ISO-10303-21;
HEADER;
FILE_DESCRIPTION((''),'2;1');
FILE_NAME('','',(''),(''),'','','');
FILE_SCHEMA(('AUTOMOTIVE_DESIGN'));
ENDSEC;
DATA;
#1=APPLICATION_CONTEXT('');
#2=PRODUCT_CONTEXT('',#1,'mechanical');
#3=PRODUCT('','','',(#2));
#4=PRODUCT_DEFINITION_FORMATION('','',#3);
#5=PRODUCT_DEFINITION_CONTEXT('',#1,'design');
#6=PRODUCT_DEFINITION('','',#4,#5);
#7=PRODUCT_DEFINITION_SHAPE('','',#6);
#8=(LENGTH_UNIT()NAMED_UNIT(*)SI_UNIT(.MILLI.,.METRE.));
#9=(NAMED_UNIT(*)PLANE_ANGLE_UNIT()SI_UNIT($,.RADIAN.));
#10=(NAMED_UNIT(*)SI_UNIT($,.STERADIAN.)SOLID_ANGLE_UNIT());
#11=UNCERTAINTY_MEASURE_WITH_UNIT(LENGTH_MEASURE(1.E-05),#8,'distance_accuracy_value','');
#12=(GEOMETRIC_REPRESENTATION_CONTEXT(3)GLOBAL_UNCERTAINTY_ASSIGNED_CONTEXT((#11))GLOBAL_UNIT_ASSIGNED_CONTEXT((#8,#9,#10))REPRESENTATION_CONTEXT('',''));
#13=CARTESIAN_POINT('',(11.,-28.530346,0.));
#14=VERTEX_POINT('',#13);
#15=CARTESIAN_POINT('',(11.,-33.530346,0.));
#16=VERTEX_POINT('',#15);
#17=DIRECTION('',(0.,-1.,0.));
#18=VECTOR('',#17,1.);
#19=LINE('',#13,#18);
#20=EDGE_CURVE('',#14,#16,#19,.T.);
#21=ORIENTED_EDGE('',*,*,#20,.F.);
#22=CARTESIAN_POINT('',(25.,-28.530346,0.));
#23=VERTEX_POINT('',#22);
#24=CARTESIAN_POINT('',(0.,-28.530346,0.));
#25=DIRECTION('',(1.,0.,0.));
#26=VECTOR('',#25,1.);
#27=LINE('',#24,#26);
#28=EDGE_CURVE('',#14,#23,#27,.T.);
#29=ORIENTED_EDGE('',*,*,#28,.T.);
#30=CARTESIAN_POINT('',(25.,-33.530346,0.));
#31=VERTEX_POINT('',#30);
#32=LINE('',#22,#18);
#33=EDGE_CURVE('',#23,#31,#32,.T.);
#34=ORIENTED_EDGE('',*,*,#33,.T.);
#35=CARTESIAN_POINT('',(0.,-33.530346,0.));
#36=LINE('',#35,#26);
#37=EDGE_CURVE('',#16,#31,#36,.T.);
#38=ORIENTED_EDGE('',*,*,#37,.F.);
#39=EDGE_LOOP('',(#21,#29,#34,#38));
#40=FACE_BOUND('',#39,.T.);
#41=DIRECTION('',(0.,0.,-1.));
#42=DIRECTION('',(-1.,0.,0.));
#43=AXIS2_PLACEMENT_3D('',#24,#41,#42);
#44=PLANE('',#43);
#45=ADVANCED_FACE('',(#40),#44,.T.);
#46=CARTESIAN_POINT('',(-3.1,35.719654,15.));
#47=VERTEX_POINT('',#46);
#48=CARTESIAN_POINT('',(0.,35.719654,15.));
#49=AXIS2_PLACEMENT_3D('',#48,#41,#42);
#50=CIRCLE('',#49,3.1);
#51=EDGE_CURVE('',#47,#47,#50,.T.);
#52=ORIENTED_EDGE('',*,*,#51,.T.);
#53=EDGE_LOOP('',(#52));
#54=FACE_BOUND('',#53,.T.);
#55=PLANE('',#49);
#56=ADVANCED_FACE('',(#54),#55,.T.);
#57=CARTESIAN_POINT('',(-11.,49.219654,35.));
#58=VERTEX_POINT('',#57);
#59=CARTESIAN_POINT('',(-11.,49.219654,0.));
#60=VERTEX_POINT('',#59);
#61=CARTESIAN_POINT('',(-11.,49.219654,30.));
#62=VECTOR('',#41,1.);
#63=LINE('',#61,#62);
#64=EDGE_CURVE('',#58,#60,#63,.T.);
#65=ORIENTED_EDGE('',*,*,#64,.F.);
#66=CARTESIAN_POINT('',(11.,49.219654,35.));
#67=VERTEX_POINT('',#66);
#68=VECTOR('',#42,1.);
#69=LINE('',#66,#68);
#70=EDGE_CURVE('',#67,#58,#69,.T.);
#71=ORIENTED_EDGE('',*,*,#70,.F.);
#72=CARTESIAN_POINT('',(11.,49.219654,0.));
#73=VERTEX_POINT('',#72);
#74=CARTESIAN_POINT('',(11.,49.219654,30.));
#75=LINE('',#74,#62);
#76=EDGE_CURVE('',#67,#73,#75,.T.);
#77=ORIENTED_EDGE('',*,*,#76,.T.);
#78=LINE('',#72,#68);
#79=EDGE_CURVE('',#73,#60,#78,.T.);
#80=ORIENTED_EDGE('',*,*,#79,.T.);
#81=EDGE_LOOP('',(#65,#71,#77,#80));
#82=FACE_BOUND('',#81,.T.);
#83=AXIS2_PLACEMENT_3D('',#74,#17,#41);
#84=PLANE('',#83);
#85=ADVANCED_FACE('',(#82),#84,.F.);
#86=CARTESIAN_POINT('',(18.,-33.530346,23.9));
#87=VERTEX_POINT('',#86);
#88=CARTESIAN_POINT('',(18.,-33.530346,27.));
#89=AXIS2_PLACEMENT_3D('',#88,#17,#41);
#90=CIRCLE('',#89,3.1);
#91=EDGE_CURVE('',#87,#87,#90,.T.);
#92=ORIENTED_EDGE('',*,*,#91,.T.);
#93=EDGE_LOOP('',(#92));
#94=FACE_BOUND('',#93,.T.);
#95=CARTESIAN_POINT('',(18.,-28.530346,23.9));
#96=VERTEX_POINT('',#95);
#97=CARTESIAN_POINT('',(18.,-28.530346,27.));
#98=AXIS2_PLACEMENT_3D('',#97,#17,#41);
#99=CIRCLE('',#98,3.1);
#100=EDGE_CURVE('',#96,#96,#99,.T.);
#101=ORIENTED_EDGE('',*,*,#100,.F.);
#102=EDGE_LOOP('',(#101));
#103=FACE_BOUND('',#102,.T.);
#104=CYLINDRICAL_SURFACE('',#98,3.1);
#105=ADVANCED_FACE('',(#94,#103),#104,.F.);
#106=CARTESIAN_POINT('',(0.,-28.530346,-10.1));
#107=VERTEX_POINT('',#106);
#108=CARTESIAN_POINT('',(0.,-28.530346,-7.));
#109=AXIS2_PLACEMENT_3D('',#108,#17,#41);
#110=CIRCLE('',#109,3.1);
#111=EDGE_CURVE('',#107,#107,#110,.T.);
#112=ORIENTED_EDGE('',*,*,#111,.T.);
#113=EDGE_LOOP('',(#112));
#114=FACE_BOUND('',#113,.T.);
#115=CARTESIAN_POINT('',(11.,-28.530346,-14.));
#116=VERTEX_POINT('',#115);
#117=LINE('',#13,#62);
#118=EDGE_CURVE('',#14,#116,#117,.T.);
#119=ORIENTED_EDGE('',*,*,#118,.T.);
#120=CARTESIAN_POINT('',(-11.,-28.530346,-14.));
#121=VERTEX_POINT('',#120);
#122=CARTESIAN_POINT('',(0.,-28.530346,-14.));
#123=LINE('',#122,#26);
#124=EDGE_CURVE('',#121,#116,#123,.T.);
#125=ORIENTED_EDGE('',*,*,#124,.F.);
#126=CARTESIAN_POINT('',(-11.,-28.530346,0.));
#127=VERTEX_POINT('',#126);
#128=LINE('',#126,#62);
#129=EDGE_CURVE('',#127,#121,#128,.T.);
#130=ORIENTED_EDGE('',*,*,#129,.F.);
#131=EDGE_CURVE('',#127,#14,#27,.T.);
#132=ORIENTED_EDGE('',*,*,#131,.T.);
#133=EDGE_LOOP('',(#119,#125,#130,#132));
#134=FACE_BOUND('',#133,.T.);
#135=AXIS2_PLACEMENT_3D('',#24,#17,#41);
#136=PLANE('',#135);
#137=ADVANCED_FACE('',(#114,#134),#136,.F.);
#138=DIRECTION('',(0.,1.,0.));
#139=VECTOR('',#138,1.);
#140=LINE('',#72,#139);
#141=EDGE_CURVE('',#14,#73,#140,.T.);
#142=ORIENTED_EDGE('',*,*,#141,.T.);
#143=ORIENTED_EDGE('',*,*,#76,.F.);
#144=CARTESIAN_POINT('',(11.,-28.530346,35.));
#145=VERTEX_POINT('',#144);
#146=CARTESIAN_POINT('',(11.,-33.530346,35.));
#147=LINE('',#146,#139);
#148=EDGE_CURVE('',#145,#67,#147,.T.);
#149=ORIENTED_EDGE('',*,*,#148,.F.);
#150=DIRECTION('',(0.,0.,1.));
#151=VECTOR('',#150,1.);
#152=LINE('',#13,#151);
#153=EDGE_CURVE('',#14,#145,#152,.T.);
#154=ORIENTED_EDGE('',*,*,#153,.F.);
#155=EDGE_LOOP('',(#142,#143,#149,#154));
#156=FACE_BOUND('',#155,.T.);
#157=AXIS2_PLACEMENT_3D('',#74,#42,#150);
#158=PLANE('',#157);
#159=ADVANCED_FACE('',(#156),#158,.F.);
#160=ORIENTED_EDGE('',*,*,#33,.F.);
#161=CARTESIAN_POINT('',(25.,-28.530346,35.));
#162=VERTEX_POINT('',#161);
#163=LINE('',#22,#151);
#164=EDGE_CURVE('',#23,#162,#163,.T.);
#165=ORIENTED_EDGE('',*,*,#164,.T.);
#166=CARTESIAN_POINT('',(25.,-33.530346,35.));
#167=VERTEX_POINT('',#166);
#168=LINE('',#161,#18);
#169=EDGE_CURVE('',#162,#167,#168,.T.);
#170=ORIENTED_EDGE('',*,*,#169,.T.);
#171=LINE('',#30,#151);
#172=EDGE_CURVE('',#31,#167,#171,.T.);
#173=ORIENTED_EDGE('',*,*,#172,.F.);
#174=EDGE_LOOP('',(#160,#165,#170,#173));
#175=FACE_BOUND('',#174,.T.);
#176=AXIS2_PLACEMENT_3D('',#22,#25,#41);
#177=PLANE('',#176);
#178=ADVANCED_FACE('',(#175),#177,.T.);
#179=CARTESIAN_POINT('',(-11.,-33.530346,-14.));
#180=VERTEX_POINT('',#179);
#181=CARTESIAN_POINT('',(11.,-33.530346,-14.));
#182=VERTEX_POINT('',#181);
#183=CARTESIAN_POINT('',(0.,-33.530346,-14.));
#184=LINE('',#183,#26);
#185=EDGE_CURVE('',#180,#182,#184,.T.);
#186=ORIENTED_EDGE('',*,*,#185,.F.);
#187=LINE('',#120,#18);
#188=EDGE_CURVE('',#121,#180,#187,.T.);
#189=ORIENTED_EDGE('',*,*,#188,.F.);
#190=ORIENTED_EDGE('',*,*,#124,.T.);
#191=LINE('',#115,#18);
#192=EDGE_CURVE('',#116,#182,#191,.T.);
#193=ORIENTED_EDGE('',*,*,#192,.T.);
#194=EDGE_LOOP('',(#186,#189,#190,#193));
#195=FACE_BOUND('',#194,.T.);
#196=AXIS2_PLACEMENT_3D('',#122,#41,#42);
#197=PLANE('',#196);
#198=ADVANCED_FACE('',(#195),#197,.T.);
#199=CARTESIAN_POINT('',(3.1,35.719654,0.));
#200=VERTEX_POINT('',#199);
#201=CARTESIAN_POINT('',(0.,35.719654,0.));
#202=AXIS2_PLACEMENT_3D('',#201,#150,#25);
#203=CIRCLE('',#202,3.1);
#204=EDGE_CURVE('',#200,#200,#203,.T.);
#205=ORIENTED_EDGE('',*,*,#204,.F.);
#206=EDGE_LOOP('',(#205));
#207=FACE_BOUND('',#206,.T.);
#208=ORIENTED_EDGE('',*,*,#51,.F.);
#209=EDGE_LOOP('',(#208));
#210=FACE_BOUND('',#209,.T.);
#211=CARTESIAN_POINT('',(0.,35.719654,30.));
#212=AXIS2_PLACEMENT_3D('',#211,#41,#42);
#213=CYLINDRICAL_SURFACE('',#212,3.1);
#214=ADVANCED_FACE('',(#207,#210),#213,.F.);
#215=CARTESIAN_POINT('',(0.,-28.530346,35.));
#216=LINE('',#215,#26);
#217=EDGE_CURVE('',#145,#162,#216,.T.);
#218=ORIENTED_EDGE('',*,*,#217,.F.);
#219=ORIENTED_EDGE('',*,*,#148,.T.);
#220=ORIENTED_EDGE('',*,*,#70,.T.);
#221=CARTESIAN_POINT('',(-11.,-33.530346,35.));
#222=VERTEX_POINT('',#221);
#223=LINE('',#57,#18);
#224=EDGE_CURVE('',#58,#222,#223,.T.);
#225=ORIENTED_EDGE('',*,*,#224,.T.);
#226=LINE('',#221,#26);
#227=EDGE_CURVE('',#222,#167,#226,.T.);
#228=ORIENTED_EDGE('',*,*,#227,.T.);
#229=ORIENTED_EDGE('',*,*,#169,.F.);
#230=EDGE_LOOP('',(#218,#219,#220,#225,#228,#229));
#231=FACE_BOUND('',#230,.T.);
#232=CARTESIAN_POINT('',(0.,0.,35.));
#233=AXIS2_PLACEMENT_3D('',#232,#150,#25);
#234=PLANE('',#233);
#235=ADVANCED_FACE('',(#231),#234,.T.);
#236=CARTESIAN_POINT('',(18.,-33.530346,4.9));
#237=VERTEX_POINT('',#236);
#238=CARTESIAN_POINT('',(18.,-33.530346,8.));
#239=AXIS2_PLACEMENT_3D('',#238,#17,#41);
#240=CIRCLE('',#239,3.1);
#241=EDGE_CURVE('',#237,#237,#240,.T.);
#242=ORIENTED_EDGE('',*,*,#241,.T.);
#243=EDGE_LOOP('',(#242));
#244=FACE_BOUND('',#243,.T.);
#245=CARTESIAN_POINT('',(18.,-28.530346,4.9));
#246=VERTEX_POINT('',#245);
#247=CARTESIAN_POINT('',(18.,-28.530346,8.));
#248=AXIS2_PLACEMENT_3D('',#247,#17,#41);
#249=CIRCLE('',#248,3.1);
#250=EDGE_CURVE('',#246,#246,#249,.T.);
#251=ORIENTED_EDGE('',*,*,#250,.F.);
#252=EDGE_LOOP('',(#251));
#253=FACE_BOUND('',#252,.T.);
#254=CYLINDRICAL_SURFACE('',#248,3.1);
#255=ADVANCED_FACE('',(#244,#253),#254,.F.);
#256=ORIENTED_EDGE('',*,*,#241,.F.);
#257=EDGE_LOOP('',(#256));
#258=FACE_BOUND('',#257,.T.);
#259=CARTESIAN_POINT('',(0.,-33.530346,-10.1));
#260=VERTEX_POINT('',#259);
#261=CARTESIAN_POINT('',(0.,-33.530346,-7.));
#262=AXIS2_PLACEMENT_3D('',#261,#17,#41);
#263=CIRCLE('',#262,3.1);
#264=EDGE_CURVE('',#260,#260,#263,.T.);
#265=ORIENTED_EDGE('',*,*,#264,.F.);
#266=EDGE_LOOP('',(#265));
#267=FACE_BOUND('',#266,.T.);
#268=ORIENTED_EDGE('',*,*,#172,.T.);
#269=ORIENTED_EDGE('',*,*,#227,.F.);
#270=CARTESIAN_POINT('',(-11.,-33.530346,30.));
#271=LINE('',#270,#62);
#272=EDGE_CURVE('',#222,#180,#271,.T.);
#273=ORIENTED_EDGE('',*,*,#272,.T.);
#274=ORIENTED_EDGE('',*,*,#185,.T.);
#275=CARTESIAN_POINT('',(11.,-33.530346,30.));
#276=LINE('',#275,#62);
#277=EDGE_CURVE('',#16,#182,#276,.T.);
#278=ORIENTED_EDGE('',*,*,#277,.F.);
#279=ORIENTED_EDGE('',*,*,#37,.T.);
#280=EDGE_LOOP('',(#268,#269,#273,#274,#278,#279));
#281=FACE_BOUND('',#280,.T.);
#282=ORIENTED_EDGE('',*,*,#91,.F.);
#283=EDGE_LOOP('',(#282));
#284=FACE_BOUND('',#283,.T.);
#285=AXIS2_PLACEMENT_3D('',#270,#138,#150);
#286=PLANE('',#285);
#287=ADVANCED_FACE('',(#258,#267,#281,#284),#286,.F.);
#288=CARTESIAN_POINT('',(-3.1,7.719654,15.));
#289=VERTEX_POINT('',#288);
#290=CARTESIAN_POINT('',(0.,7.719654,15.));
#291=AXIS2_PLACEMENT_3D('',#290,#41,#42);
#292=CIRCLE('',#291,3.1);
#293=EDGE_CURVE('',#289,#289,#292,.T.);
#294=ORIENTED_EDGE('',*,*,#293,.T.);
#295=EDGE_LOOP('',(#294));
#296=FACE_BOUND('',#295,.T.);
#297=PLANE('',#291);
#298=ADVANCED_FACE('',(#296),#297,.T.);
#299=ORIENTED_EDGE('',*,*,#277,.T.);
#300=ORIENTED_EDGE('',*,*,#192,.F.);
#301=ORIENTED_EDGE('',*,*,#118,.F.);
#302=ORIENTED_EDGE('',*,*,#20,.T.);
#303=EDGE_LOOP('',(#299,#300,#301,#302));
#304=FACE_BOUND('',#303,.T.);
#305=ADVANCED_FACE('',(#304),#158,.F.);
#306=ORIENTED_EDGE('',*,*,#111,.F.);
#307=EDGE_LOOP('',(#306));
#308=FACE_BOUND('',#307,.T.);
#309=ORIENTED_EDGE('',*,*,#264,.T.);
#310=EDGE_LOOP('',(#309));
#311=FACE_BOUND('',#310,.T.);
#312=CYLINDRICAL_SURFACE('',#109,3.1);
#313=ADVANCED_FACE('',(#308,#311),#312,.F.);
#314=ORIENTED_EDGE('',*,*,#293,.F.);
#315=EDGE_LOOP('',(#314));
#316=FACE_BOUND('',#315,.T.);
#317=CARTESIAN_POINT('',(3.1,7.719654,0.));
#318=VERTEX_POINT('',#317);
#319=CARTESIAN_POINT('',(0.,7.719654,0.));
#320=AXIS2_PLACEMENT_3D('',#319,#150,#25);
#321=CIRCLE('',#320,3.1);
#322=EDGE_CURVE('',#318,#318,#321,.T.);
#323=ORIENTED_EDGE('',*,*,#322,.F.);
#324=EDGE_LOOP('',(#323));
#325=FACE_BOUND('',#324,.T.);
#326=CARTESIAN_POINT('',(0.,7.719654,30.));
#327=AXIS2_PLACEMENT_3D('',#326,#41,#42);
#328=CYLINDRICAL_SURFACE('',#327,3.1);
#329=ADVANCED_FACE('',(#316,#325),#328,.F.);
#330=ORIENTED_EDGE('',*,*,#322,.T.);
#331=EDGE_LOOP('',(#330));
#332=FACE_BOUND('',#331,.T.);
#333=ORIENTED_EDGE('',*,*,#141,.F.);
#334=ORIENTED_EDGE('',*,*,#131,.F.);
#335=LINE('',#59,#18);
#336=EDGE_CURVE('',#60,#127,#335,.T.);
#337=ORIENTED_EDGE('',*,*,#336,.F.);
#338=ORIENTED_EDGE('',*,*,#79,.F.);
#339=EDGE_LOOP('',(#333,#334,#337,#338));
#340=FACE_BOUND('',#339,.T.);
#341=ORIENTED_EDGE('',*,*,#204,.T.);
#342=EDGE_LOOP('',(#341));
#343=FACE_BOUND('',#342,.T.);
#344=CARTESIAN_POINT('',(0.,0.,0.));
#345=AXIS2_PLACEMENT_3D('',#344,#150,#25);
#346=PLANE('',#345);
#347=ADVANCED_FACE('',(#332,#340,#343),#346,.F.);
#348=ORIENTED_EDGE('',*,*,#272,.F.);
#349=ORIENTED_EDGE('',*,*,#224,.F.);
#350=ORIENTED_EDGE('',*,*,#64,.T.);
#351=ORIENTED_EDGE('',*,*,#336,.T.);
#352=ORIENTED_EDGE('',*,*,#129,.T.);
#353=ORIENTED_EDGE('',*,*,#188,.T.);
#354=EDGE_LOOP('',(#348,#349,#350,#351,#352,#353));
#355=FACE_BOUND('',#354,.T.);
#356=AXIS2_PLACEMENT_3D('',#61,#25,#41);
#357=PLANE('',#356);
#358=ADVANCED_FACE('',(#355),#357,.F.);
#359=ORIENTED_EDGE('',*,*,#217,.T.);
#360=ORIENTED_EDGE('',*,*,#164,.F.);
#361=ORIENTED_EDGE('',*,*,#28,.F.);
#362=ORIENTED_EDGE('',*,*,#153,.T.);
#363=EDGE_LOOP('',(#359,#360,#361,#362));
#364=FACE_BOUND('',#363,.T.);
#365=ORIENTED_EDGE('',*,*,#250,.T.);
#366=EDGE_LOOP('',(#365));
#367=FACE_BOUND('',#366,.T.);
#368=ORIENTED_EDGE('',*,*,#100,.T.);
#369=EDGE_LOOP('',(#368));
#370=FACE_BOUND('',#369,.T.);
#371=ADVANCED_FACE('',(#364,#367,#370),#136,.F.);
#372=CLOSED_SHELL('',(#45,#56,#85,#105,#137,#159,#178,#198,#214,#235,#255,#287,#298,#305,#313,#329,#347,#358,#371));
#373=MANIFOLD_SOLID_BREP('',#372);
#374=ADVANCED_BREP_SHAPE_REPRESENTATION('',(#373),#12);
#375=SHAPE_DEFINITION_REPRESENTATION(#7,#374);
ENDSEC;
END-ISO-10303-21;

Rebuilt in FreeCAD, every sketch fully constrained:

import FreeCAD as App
import Part
import Sketcher
from FreeCAD import Vector
Q = App.Units.Quantity


def add_polygon(sketch, points):
    """Adds a closed chain of lines whose ends are joined by coincident constraints."""
    first, n = sketch.GeometryCount, len(points)
    for a, b in zip(points, points[1:] + points[:1]):
        sketch.addGeometry(Part.LineSegment(App.Vector(*a, 0), App.Vector(*b, 0)), False)
    for i in range(n):
        sketch.addConstraint(Sketcher.Constraint("Coincident", first + i, 2, first + (i + 1) % n, 1))

doc = App.newDocument("Part")
body = doc.addObject("PartDesign::Body", "Body")

sketch1 = body.newObject("Sketcher::SketchObject", "Sketch")
sketch1.AttachmentSupport = (doc.getObject("XY_Plane"), [""])
sketch1.MapMode = "FlatFace"
add_polygon(sketch1, [(-11, 49.2), (-11, -33.5), (11, -33.5), (11, 49.2)])
sketch1.addGeometry(Part.Circle(Vector(0, 7.7, 0), Vector(0, 0, 1), 3.1), False)
sketch1.addGeometry(Part.Circle(Vector(0, 35.7, 0), Vector(0, 0, 1), 3.1), False)
sketch1.addConstraint([
    Sketcher.Constraint("Vertical", 0),
    Sketcher.Constraint("Horizontal", 1),
    Sketcher.Constraint("Vertical", 2),
    Sketcher.Constraint("Horizontal", 3),
    Sketcher.Constraint("Equal", 4, 5),
    Sketcher.Constraint("PointOnObject", 4, 3, -2),
    Sketcher.Constraint("PointOnObject", 5, 3, -2),
    Sketcher.Constraint("Diameter", 4, Q("6.2 mm")),
    Sketcher.Constraint("DistanceX", 1, 1, 1, 2, Q("22 mm")),
    Sketcher.Constraint("DistanceX", 0, 2, -1, 1, Q("11 mm")),
    Sketcher.Constraint("DistanceY", 4, 3, 5, 3, Q("28 mm")),
    Sketcher.Constraint("DistanceY", 0, 2, 0, 1, Q("82.75 mm")),
    Sketcher.Constraint("DistanceY", 5, 3, 2, 2, Q("13.5 mm")),
    Sketcher.Constraint("DistanceY", -1, 1, 4, 3, Q("7.719654 mm")),
])
pad1 = body.newObject("PartDesign::Pad", "Pad")
pad1.Profile = sketch1
pad1.Length = 30

sketch2 = body.newObject("Sketcher::SketchObject", "Sketch001")
sketch2.AttachmentSupport = (doc.getObject("XY_Plane"), [""])
sketch2.MapMode = "FlatFace"
sketch2.AttachmentOffset = App.Placement(Vector(0, 0, 30), App.Rotation())
add_polygon(sketch2, [(-11, 49), (-11, -34), (11, -34), (11, 49)])
sketch2.addConstraint([
    Sketcher.Constraint("Vertical", 0),
    Sketcher.Constraint("Horizontal", 1),
    Sketcher.Constraint("Vertical", 2),
    Sketcher.Constraint("Horizontal", 3),
    Sketcher.Constraint("DistanceX", 1, 1, 1, 2, Q("22 mm")),
    Sketcher.Constraint("DistanceX", 0, 2, -1, 1, Q("11 mm")),
    Sketcher.Constraint("DistanceY", 0, 2, 0, 1, Q("82.75 mm")),
    Sketcher.Constraint("DistanceY", 0, 2, -1, 1, Q("33.530346 mm")),
])
pad2 = body.newObject("PartDesign::Pad", "Pad001")
pad2.Profile = sketch2
pad2.Length = 5

sketch3 = body.newObject("Sketcher::SketchObject", "Sketch002")
sketch3.AttachmentSupport = (doc.getObject("XZ_Plane"), [""])
sketch3.MapMode = "FlatFace"
sketch3.AttachmentOffset = App.Placement(Vector(0, 0, 33.530346), App.Rotation())
add_polygon(sketch3, [(-11, 0), (-11, -14), (11, -14), (11, 0)])
sketch3.addGeometry(Part.Circle(Vector(0, -7, 0), Vector(0, 0, 1), 3.1), False)
add_polygon(sketch3, [(11, 35), (11, 0), (25, 0), (25, 35)])
sketch3.addGeometry(Part.Circle(Vector(18, 8, 0), Vector(0, 0, 1), 3.1), False)
sketch3.addGeometry(Part.Circle(Vector(18, 27, 0), Vector(0, 0, 1), 3.1), False)
sketch3.addConstraint([
    Sketcher.Constraint("Vertical", 0),
    Sketcher.Constraint("Horizontal", 1),
    Sketcher.Constraint("Vertical", 2),
    Sketcher.Constraint("Horizontal", 3),
    Sketcher.Constraint("Vertical", 5),
    Sketcher.Constraint("Horizontal", 6),
    Sketcher.Constraint("Vertical", 7),
    Sketcher.Constraint("Horizontal", 8),
    Sketcher.Constraint("Coincident", 5, 2, 2, 2),
    Sketcher.Constraint("Equal", 4, 9),
    Sketcher.Constraint("Equal", 9, 10),
    Sketcher.Constraint("Symmetric", 2, 2, 3, 2, -1, 1),
    Sketcher.Constraint("PointOnObject", 4, 3, -2),
    Sketcher.Constraint("Vertical", 9, 3, 10, 3),
    Sketcher.Constraint("Equal", 8, 0),
    Sketcher.Constraint("Diameter", 4, Q("6.2 mm")),
    Sketcher.Constraint("DistanceX", 1, 1, 1, 2, Q("22 mm")),
    Sketcher.Constraint("DistanceX", 6, 1, 6, 2, Q("14 mm")),
    Sketcher.Constraint("DistanceY", 5, 2, 5, 1, Q("35 mm")),
    Sketcher.Constraint("DistanceY", 4, 3, -1, 1, Q("7 mm")),
    Sketcher.Constraint("DistanceX", -1, 1, 9, 3, Q("18 mm")),
    Sketcher.Constraint("DistanceY", -1, 1, 9, 3, Q("8 mm")),
    Sketcher.Constraint("DistanceY", -1, 1, 10, 3, Q("27 mm")),
])
pad3 = body.newObject("PartDesign::Pad", "Pad002")
pad3.Profile = sketch3
pad3.Length = 5
pad3.Reversed = True

sketch4 = body.newObject("Sketcher::SketchObject", "Sketch003")
sketch4.AttachmentSupport = (doc.getObject("XY_Plane"), [""])
sketch4.MapMode = "FlatFace"
sketch4.AttachmentOffset = App.Placement(Vector(0, 0, 15), App.Rotation())
sketch4.addGeometry([
    Part.Circle(Vector(0, 7.7, 0), Vector(0, 0, 1), 3.1),
    Part.Circle(Vector(0, 35.7, 0), Vector(0, 0, 1), 3.1),
], False)
sketch4.addConstraint([
    Sketcher.Constraint("Equal", 0, 1),
    Sketcher.Constraint("PointOnObject", 0, 3, -2),
    Sketcher.Constraint("PointOnObject", 1, 3, -2),
    Sketcher.Constraint("Diameter", 0, Q("6.2 mm")),
    Sketcher.Constraint("DistanceY", 0, 3, 1, 3, Q("28 mm")),
    Sketcher.Constraint("DistanceY", -1, 1, 0, 3, Q("7.719654 mm")),
])
pad4 = body.newObject("PartDesign::Pad", "Pad003")
pad4.Profile = sketch4
pad4.Length = 15

doc.recompute()
